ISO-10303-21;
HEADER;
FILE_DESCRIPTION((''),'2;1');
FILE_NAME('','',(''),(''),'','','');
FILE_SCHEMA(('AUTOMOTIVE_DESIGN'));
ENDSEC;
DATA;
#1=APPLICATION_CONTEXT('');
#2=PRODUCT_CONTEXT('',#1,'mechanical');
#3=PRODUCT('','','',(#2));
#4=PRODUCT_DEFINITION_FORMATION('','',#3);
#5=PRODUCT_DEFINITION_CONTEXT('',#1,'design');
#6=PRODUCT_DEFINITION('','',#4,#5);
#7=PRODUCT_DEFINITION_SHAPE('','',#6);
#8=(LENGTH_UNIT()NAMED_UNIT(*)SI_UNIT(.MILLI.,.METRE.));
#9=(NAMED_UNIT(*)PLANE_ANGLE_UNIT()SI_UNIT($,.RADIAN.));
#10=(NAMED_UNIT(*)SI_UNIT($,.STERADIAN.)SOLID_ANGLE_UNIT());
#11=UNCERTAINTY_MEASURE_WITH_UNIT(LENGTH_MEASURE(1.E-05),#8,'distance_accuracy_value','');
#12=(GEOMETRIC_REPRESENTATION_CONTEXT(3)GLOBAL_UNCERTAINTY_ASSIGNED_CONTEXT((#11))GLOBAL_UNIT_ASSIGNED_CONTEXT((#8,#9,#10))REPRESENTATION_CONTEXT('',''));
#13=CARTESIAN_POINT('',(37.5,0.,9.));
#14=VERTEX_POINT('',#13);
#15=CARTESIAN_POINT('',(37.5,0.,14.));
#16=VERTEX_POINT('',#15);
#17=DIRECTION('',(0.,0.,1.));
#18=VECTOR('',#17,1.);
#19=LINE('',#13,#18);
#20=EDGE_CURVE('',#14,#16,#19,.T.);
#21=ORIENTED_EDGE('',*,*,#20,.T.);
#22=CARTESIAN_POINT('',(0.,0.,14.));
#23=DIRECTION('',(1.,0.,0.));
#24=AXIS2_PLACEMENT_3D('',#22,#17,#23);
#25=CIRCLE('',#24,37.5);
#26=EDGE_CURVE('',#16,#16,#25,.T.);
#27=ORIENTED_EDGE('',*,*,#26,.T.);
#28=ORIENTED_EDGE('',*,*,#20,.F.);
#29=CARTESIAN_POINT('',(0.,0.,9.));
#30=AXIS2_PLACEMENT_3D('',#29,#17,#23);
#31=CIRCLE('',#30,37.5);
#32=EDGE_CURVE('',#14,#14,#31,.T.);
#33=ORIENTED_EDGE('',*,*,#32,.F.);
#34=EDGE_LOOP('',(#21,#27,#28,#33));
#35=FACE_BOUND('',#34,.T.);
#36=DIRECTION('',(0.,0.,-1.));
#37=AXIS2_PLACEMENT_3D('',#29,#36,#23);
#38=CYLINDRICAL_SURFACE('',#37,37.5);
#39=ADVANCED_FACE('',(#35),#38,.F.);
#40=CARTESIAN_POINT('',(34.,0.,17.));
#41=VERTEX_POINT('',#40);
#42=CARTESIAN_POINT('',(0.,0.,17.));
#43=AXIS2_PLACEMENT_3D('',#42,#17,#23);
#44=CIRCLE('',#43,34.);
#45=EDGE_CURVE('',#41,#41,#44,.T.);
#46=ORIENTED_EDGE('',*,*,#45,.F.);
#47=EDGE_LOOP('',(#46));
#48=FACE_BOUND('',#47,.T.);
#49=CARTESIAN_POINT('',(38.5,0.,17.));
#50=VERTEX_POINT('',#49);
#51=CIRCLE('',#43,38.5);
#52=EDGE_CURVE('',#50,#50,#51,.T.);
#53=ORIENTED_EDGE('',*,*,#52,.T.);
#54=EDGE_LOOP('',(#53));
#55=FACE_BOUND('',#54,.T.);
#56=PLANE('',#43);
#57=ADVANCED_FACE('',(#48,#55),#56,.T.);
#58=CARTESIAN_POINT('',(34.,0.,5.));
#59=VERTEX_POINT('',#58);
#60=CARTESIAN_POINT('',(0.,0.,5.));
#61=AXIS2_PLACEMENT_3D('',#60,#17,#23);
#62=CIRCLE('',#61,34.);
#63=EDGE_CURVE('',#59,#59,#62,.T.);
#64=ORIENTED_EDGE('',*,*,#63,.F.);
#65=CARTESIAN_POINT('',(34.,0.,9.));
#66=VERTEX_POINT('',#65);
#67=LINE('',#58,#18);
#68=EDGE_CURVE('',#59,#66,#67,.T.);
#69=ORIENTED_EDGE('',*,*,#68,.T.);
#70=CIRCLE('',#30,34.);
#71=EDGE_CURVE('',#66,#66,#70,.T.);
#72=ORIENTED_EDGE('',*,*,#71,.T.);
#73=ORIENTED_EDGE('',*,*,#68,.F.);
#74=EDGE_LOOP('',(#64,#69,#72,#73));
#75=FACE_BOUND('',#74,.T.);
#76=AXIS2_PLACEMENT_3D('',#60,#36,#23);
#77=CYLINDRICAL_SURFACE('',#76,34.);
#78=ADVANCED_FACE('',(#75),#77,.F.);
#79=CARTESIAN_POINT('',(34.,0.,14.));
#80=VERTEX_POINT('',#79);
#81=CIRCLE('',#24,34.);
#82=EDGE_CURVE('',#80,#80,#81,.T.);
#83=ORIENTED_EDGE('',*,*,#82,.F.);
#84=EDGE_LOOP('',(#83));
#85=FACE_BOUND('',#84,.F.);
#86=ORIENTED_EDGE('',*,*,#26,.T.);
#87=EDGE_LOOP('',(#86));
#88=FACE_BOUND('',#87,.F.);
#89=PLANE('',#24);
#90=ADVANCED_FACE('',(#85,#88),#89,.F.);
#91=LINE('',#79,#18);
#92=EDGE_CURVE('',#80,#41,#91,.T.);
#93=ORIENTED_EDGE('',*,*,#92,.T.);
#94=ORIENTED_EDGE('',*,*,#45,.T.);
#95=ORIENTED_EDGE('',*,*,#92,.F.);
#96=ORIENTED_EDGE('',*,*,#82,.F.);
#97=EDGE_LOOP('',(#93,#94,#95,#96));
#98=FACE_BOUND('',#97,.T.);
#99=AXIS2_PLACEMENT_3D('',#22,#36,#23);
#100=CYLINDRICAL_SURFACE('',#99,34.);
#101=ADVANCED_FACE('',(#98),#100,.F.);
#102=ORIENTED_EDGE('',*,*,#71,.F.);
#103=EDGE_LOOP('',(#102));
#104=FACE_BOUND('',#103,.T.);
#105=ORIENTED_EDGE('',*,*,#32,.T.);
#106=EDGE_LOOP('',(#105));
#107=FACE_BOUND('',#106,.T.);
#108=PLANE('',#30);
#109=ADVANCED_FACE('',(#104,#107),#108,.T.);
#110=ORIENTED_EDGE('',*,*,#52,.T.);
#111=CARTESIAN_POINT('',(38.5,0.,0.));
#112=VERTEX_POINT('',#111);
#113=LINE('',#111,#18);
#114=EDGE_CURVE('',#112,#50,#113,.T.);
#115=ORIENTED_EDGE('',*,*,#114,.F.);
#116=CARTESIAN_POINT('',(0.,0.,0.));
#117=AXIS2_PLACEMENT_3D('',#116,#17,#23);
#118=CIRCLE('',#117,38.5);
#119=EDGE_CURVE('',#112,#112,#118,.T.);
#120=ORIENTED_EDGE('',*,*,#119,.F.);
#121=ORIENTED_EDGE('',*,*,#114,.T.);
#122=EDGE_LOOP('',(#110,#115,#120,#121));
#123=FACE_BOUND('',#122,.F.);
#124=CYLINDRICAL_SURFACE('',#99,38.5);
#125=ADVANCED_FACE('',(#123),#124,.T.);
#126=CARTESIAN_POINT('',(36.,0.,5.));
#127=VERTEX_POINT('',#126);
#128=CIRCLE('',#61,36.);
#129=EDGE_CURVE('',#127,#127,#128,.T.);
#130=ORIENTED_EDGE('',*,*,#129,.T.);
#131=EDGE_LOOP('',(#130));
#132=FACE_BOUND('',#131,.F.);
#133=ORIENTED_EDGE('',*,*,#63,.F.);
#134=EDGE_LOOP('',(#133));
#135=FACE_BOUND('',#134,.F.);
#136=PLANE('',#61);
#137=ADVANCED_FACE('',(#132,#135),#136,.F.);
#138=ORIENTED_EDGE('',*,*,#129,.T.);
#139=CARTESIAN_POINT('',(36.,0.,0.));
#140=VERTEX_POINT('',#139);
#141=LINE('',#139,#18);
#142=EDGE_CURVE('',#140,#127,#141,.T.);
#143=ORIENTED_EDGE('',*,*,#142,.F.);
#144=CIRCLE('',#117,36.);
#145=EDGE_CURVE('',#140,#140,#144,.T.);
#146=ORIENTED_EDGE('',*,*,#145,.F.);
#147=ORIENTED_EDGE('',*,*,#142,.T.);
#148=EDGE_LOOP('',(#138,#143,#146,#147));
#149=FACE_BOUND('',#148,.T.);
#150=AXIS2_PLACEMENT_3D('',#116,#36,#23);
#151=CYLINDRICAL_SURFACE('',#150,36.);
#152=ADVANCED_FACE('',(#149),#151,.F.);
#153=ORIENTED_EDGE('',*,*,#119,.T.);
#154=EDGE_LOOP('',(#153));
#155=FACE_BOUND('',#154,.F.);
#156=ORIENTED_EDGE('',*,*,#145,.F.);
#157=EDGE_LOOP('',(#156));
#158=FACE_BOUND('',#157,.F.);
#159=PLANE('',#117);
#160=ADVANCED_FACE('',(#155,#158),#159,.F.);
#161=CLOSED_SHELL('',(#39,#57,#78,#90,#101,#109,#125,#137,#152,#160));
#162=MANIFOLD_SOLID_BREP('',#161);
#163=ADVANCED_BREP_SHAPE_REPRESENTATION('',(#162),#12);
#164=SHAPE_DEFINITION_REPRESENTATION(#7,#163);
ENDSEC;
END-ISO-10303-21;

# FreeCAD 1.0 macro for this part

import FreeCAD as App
import Part
import Sketcher

V = App.Vector

doc = App.newDocument("Part")
body = doc.addObject("PartDesign::Body", "Body")

# Sketch on XY plane
sketch1 = body.newObject("Sketcher::SketchObject", "Sketch")
sketch1.AttachmentSupport = (doc.getObject("XY_Plane"), [""])
sketch1.MapMode = "FlatFace"
sketch1.addGeometry([
    Part.Circle(V(0, 0, 0), V(0, 0, 1), 38),
    Part.Circle(V(0, 0, 0), V(0, 0, 1), 36),
], False)
sketch1.addConstraint([
    Sketcher.Constraint("Coincident", 0, 3, -1, 1),
    Sketcher.Constraint("Coincident", 1, 3, -1, 1),
    Sketcher.Constraint("Diameter", 0, 77.0),
    Sketcher.Constraint("Diameter", 1, 72.0),
])
pad1 = body.newObject("PartDesign::Pad", "Pad")
pad1.Profile = sketch1
pad1.Length = 5

# Sketch on XY plane
sketch2 = body.newObject("Sketcher::SketchObject", "Sketch001")
sketch2.AttachmentSupport = (doc.getObject("XY_Plane"), [""])
sketch2.MapMode = "FlatFace"
sketch2.AttachmentOffset = App.Placement(V(0, 0, 5), App.Rotation())
sketch2.addGeometry([
    Part.Circle(V(0, 0, 0), V(0, 0, 1), 38),
    Part.Circle(V(0, 0, 0), V(0, 0, 1), 34),
], False)
sketch2.addConstraint([
    Sketcher.Constraint("Coincident", 0, 3, -1, 1),
    Sketcher.Constraint("Coincident", 1, 3, -1, 1),
    Sketcher.Constraint("Diameter", 0, 77.0),
    Sketcher.Constraint("Diameter", 1, 68.0),
])
pad2 = body.newObject("PartDesign::Pad", "Pad001")
pad2.Profile = sketch2
pad2.Length = 4

# Sketch on XY plane
sketch3 = body.newObject("Sketcher::SketchObject", "Sketch002")
sketch3.AttachmentSupport = (doc.getObject("XY_Plane"), [""])
sketch3.MapMode = "FlatFace"
sketch3.AttachmentOffset = App.Placement(V(0, 0, 9), App.Rotation())
sketch3.addGeometry([
    Part.Circle(V(0, 0, 0), V(0, 0, 1), 38),
    Part.Circle(V(0, 0, 0), V(0, 0, 1), 38),
], False)
sketch3.addConstraint([
    Sketcher.Constraint("Coincident", 0, 3, -1, 1),
    Sketcher.Constraint("Coincident", 1, 3, -1, 1),
    Sketcher.Constraint("Diameter", 0, 77.0),
    Sketcher.Constraint("Diameter", 1, 75.0),
])
pad3 = body.newObject("PartDesign::Pad", "Pad002")
pad3.Profile = sketch3
pad3.Length = 5

# Sketch on XY plane
sketch4 = body.newObject("Sketcher::SketchObject", "Sketch003")
sketch4.AttachmentSupport = (doc.getObject("XY_Plane"), [""])
sketch4.MapMode = "FlatFace"
sketch4.AttachmentOffset = App.Placement(V(0, 0, 14), App.Rotation())
sketch4.addGeometry([
    Part.Circle(V(0, 0, 0), V(0, 0, 1), 38),
    Part.Circle(V(0, 0, 0), V(0, 0, 1), 34),
], False)
sketch4.addConstraint([
    Sketcher.Constraint("Coincident", 0, 3, -1, 1),
    Sketcher.Constraint("Coincident", 1, 3, -1, 1),
    Sketcher.Constraint("Diameter", 0, 77.0),
    Sketcher.Constraint("Diameter", 1, 68.0),
])
pad4 = body.newObject("PartDesign::Pad", "Pad003")
pad4.Profile = sketch4
pad4.Length = 3

doc.recompute()
